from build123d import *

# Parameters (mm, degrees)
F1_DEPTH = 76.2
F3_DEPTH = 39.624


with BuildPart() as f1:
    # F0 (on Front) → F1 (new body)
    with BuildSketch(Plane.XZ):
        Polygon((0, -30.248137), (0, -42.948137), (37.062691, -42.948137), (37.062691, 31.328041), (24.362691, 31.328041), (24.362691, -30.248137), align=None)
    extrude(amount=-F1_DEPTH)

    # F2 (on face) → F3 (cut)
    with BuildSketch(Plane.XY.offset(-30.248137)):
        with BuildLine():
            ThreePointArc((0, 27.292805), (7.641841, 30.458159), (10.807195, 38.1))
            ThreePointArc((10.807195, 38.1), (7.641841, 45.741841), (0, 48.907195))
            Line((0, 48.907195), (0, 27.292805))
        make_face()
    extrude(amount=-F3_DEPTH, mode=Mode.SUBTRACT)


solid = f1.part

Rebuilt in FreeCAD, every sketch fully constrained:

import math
import FreeCAD as App
import Part
import Sketcher
Q = App.Units.Quantity


def add_polygon(sketch, points):
    """Adds a closed chain of lines whose ends are joined by coincident constraints."""
    first, n = sketch.GeometryCount, len(points)
    for a, b in zip(points, points[1:] + points[:1]):
        sketch.addGeometry(Part.LineSegment(App.Vector(*a, 0), App.Vector(*b, 0)), False)
    for i in range(n):
        sketch.addConstraint(Sketcher.Constraint("Coincident", first + i, 2, first + (i + 1) % n, 1))

doc = App.newDocument("Part")
body = doc.addObject("PartDesign::Body", "Body")

# Sketch on XZ plane
sketch1 = doc.addObject("Sketcher::SketchObject", "Sketch")
body.addObject(sketch1)
sketch1.AttachmentSupport = (doc.XZ_Plane, [""])
sketch1.MapMode = "FlatFace"
add_polygon(sketch1, [(0, -30), (0, -43), (37, -43), (37, 31), (24, 31), (24, -30)])  # lines 0-5
sketch1.addConstraint(Sketcher.Constraint("Vertical", 0))
sketch1.addConstraint(Sketcher.Constraint("Horizontal", 1))
sketch1.addConstraint(Sketcher.Constraint("Vertical", 2))
sketch1.addConstraint(Sketcher.Constraint("Horizontal", 3))
sketch1.addConstraint(Sketcher.Constraint("Vertical", 4))
sketch1.addConstraint(Sketcher.Constraint("Horizontal", 5))
sketch1.addConstraint(Sketcher.Constraint("PointOnObject", 0, 2, -2))
sketch1.addConstraint(Sketcher.Constraint("Equal", 3, 0))
sketch1.addConstraint(Sketcher.Constraint("DistanceX", 3, 2, 3, 1, Q("0.5 in")))
sketch1.addConstraint(Sketcher.Constraint("DistanceX", 1, 1, 1, 2, 37.062691))
sketch1.addConstraint(Sketcher.Constraint("DistanceY", 2, 1, 2, 2, 74.276178))
sketch1.addConstraint(Sketcher.Constraint("DistanceY", -1, 1, 2, 2, 31.328041))
pad1 = doc.addObject("PartDesign::Pad", "Pad")
body.addObject(pad1)
pad1.Profile = sketch1
pad1.Length = Q("3 in")
pad1.Reversed = True

# Sketch on XY plane
sketch2 = doc.addObject("Sketcher::SketchObject", "Sketch001")
body.addObject(sketch2)
sketch2.AttachmentSupport = (doc.XY_Plane, [""])
sketch2.MapMode = "FlatFace"
sketch2.AttachmentOffset = App.Placement(App.Vector(0, 0, -30.248137), App.Rotation())
sketch2.addGeometry(Part.ArcOfCircle(Part.Circle(App.Vector(0, 38, 0), App.Vector(0, 0, 1), 11), math.radians(-90), math.radians(0)), False)
sketch2.addGeometry(Part.ArcOfCircle(Part.Circle(App.Vector(0, 38, 0), App.Vector(0, 0, 1), 11), math.radians(0), math.radians(90)), False)
sketch2.addGeometry(Part.LineSegment(App.Vector(0, 49, 0), App.Vector(0, 27, 0)), False)
sketch2.addConstraint(Sketcher.Constraint("Tangent", 0, 2, 1, 1))
sketch2.addConstraint(Sketcher.Constraint("Coincident", 1, 2, 2, 1))
sketch2.addConstraint(Sketcher.Constraint("Coincident", 2, 2, 0, 1))
sketch2.addConstraint(Sketcher.Constraint("Vertical", 2))
sketch2.addConstraint(Sketcher.Constraint("Equal", 0, 1))
sketch2.addConstraint(Sketcher.Constraint("PointOnObject", 0, 3, -2))
sketch2.addConstraint(Sketcher.Constraint("PointOnObject", 1, 2, -2))
sketch2.addConstraint(Sketcher.Constraint("Horizontal", 1, 3, 0, 2))
sketch2.addConstraint(Sketcher.Constraint("DistanceY", -1, 1, 0, 3, Q("1.5 in")))
sketch2.addConstraint(Sketcher.Constraint("Radius", 0, 10.807195))
pocket1 = doc.addObject("PartDesign::Pocket", "Pocket")
body.addObject(pocket1)
pocket1.Profile = sketch2
pocket1.Length = Q("1.56 in")

doc.recompute()
